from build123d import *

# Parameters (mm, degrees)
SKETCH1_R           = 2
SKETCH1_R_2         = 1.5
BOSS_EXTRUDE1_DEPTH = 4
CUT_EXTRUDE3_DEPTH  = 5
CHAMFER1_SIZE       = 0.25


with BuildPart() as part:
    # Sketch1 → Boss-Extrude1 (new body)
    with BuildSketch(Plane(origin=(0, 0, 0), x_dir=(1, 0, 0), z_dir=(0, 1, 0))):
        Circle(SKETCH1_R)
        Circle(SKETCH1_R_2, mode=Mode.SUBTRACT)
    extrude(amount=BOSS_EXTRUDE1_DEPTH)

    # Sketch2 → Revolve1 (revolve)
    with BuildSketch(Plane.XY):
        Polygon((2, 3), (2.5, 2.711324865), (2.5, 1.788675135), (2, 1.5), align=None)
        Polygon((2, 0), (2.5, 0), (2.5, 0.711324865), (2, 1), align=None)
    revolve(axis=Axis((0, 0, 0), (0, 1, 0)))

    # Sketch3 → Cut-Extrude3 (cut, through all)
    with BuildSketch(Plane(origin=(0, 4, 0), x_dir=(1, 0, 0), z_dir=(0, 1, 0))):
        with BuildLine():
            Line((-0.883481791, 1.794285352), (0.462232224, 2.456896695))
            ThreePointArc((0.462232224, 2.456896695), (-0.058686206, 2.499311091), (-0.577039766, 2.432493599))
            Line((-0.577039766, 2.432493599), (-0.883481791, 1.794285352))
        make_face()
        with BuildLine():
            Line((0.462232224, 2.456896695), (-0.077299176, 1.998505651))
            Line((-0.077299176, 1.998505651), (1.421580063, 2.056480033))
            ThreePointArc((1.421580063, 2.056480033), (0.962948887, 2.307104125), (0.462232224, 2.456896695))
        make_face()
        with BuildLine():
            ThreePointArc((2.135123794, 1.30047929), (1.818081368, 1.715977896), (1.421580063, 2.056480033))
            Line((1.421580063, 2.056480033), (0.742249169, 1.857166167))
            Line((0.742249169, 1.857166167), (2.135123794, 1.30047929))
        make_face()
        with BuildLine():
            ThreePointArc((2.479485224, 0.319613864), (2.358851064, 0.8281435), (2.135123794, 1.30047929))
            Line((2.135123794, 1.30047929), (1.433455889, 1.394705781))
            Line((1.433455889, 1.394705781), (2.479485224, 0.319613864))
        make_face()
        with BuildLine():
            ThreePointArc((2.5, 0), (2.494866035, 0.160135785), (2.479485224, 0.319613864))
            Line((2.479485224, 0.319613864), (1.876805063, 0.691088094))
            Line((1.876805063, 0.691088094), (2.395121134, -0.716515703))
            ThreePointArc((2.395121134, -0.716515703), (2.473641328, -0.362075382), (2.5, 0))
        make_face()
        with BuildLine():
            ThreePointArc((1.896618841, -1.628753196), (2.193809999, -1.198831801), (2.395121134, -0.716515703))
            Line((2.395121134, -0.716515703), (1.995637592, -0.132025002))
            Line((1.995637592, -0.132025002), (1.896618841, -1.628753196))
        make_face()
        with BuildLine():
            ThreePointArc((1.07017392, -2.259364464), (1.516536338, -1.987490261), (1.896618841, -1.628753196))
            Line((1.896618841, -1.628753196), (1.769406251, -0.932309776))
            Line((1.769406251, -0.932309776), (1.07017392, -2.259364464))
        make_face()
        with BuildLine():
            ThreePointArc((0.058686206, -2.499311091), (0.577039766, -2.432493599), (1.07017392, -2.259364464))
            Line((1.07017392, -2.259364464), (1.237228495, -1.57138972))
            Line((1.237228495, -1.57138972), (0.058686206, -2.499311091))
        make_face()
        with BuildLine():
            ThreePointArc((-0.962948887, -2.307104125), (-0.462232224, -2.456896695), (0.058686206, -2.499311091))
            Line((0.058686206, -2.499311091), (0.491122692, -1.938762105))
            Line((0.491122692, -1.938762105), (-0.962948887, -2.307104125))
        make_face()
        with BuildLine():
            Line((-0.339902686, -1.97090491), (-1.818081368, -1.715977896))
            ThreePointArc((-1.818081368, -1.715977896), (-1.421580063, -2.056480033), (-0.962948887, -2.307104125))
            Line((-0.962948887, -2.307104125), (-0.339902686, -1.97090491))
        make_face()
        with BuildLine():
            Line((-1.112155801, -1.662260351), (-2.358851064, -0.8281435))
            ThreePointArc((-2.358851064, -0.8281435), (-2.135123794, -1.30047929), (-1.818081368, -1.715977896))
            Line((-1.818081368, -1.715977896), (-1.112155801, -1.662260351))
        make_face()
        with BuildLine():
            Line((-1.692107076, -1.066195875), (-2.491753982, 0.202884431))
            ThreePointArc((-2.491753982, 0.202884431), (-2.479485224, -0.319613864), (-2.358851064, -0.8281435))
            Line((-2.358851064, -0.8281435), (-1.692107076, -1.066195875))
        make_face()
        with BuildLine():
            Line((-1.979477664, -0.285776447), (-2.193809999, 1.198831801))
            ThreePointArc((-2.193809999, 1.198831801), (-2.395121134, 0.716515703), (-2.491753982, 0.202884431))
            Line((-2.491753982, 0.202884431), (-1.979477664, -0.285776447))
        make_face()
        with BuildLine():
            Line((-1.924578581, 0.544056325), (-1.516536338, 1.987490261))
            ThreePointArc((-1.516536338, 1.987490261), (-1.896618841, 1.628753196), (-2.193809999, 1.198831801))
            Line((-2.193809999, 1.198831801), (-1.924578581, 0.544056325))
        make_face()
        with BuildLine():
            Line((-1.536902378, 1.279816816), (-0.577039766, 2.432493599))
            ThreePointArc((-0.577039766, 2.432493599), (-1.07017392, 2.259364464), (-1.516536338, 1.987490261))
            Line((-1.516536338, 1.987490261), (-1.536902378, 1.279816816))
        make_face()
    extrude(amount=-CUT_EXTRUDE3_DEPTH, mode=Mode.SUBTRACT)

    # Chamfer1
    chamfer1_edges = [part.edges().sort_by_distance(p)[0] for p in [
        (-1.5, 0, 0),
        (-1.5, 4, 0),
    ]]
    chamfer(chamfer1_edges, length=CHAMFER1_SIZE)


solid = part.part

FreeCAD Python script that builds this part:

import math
import FreeCAD as App
import Part
import Sketcher
from FreeCAD import Vector
Q = App.Units.Quantity


def edges_at(feature, points):
    """Names of the edges that pass closest to the given points."""
    edges = feature.Shape.Edges
    near = lambda p: min(range(len(edges)), key=lambda i: edges[i].distToShape(Part.Vertex(*p))[0])
    return sorted({f"Edge{near(p) + 1}" for p in points})

doc = App.newDocument("Part")
params = doc.addObject("Spreadsheet::Sheet", "Params")
for row, (alias, value) in enumerate([
    ("sketch1_diameter", "4 mm"),
    ("sketch1_diameter2", "3 mm"),
    ("pad1_length", "4 mm"),
    ("sketch2_height", "1 mm"),
    ("sketch2_width", "0.5 mm"),
    ("sketch2_height2", "1.5 mm"),
    ("revolution_angle", "360 deg"),
    ("sketch3_radius", "2.5 mm"),
    ("sketch3_length", "1.5 mm"),
    ("chamfer_size", "0.25 mm"),
], start=1):
    params.set(f"A{row}", alias)
    params.set(f"B{row}", "=" + value)
    params.setAlias(f"B{row}", alias)

body = doc.addObject("PartDesign::Body", "Body")

sketch1 = body.newObject("Sketcher::SketchObject", "Sketch")
sketch1.AttachmentSupport = (doc.getObject("XZ_Plane"), [""])
sketch1.MapMode = "FlatFace"
sketch1.addGeometry([
    Part.Circle(Vector(0, 0, 0), Vector(0, 0, 1), 2),
    Part.Circle(Vector(0, 0, 0), Vector(0, 0, 1), 1.5),
], False)
sketch1.addConstraint([
    Sketcher.Constraint("Coincident", 0, 3, -1, 1),
    Sketcher.Constraint("Coincident", 1, 3, -1, 1),
    Sketcher.Constraint("Diameter", 0, 4.0),
    Sketcher.Constraint("Diameter", 1, 3.0),
])
sketch1.setExpression("Constraints[2]", "Params.sketch1_diameter")
sketch1.setExpression("Constraints[3]", "Params.sketch1_diameter2")
pad1 = body.newObject("PartDesign::Pad", "Pad")
pad1.Profile = sketch1
pad1.setExpression("Length", "Params.pad1_length")
pad1.Reversed = True

sketch2 = body.newObject("Sketcher::SketchObject", "Sketch001")
sketch2.AttachmentSupport = (doc.getObject("XY_Plane"), [""])
sketch2.MapMode = "FlatFace"
sketch2.addGeometry([
    Part.LineSegment(Vector(2.5, 2.7, 0), Vector(2, 3, 0)),
    Part.LineSegment(Vector(2, 3, 0), Vector(2, 1.5, 0)),
    Part.LineSegment(Vector(2, 1.5, 0), Vector(2.5, 1.8, 0)),
    Part.LineSegment(Vector(2.5, 1.8, 0), Vector(2.5, 2.7, 0)),
    Part.LineSegment(Vector(2, 0, 0), Vector(2.5, 0, 0)),
    Part.LineSegment(Vector(2.5, 0, 0), Vector(2.5, 0.7, 0)),
    Part.LineSegment(Vector(2.5, 0.7, 0), Vector(2, 1, 0)),
    Part.LineSegment(Vector(2, 1, 0), Vector(2, 0, 0)),
], False)
sketch2.addConstraint([
    Sketcher.Constraint("Coincident", 0, 2, 1, 1),
    Sketcher.Constraint("Coincident", 1, 2, 2, 1),
    Sketcher.Constraint("Coincident", 2, 2, 3, 1),
    Sketcher.Constraint("Coincident", 3, 2, 0, 1),
    Sketcher.Constraint("Coincident", 4, 2, 5, 1),
    Sketcher.Constraint("Coincident", 5, 2, 6, 1),
    Sketcher.Constraint("Coincident", 6, 2, 7, 1),
    Sketcher.Constraint("Coincident", 7, 2, 4, 1),
    Sketcher.Constraint("Vertical", 1),
    Sketcher.Constraint("Vertical", 3),
    Sketcher.Constraint("Horizontal", 4),
    Sketcher.Constraint("Vertical", 5),
    Sketcher.Constraint("Vertical", 7),
    Sketcher.Constraint("PointOnObject", 4, 2, -1),
    Sketcher.Constraint("Parallel", 0, 6),
    Sketcher.Constraint("Vertical", 3, 2, 4, 2),
    Sketcher.Constraint("Vertical", 1, 2, 6, 2),
    Sketcher.Constraint("Equal", 0, 2),
    Sketcher.Constraint("DistanceY", 7, 2, 7, 1, 1.0),
    Sketcher.Constraint("Angle", 0, Q("150 deg")),
    Sketcher.Constraint("DistanceX", 4, 1, 4, 2, 0.5),
    Sketcher.Constraint("DistanceY", 1, 2, 1, 1, 1.5),
    Sketcher.Constraint("DistanceX", -1, 1, 0, 2, 2.0),
    Sketcher.Constraint("DistanceY", -1, 1, 0, 2, 3.0),
])
sketch2.setExpression("Constraints[18]", "Params.sketch2_height")
sketch2.setExpression("Constraints[20]", "Params.sketch2_width")
sketch2.setExpression("Constraints[21]", "Params.sketch2_height2")
revolution = body.newObject("PartDesign::Revolution", "Revolution")
revolution.Profile = sketch2
revolution.ReferenceAxis = (sketch2, ["V_Axis"])
revolution.setExpression("Angle", "Params.revolution_angle")

sketch3 = body.newObject("Sketcher::SketchObject", "Sketch002")
sketch3.AttachmentSupport = (doc.getObject("XZ_Plane"), [""])
sketch3.MapMode = "FlatFace"
sketch3.AttachmentOffset = App.Placement(Vector(0, 0, -4), App.Rotation())
sketch3.addGeometry([
    Part.LineSegment(Vector(-0.88, -1.79, 0), Vector(0.46, -2.46, 0)),
    Part.ArcOfCircle(Part.Circle(Vector(0, 0, 0), Vector(0, 0, 1), 2.5), math.radians(-103), math.radians(-79)),
    Part.LineSegment(Vector(-0.58, -2.43, 0), Vector(-0.88, -1.79, 0)),
    Part.LineSegment(Vector(0.46, -2.46, 0), Vector(-0.08, -2, 0)),
    Part.LineSegment(Vector(-0.08, -2, 0), Vector(1.42, -2.06, 0)),
    Part.ArcOfCircle(Part.Circle(Vector(0, 0, 0), Vector(0, 0, 1), 2.5), math.radians(-79), math.radians(-55)),
    Part.ArcOfCircle(Part.Circle(Vector(0, 0, 0), Vector(0, 0, 1), 2.5), math.radians(-55), math.radians(-31)),
    Part.LineSegment(Vector(1.42, -2.06, 0), Vector(0.74, -1.86, 0)),
    Part.LineSegment(Vector(0.74, -1.86, 0), Vector(2.14, -1.3, 0)),
    Part.ArcOfCircle(Part.Circle(Vector(0, 0, 0), Vector(0, 0, 1), 2.5), math.radians(-31), math.radians(-7)),
    Part.LineSegment(Vector(2.14, -1.3, 0), Vector(1.43, -1.39, 0)),
    Part.LineSegment(Vector(1.43, -1.39, 0), Vector(2.48, -0.32, 0)),
    Part.ArcOfCircle(Part.Circle(Vector(0, 0, 0), Vector(0, 0, 1), 2.5), math.radians(-7.35), math.radians(0)),
    Part.LineSegment(Vector(2.48, -0.32, 0), Vector(1.88, -0.69, 0)),
    Part.LineSegment(Vector(1.88, -0.69, 0), Vector(2.4, 0.72, 0)),
    Part.ArcOfCircle(Part.Circle(Vector(0, 0, 0), Vector(0, 0, 1), 2.5), math.radians(0), math.radians(16.65)),
    Part.ArcOfCircle(Part.Circle(Vector(0, 0, 0), Vector(0, 0, 1), 2.5), math.radians(17), math.radians(41)),
    Part.LineSegment(Vector(2.4, 0.72, 0), Vector(2, 0.13, 0)),
    Part.LineSegment(Vector(2, 0.13, 0), Vector(1.9, 1.63, 0)),
    Part.ArcOfCircle(Part.Circle(Vector(0, 0, 0), Vector(0, 0, 1), 2.5), math.radians(41), math.radians(65)),
    Part.LineSegment(Vector(1.9, 1.63, 0), Vector(1.77, 0.93, 0)),
    Part.LineSegment(Vector(1.77, 0.93, 0), Vector(1.07, 2.26, 0)),
    Part.ArcOfCircle(Part.Circle(Vector(0, 0, 0), Vector(0, 0, 1), 2.5), math.radians(65), math.radians(89)),
    Part.LineSegment(Vector(1.07, 2.26, 0), Vector(1.24, 1.57, 0)),
    Part.LineSegment(Vector(1.24, 1.57, 0), Vector(0.06, 2.5, 0)),
    Part.ArcOfCircle(Part.Circle(Vector(0, 0, 0), Vector(0, 0, 1), 2.5), math.radians(89), math.radians(113)),
    Part.LineSegment(Vector(0.06, 2.5, 0), Vector(0.49, 1.94, 0)),
    Part.LineSegment(Vector(0.49, 1.94, 0), Vector(-0.96, 2.31, 0)),
    Part.LineSegment(Vector(-0.34, 1.97, 0), Vector(-1.82, 1.72, 0)),
    Part.ArcOfCircle(Part.Circle(Vector(0, 0, 0), Vector(0, 0, 1), 2.5), math.radians(113), math.radians(137)),
    Part.LineSegment(Vector(-0.96, 2.31, 0), Vector(-0.34, 1.97, 0)),
    Part.LineSegment(Vector(-1.11, 1.66, 0), Vector(-2.36, 0.83, 0)),
    Part.ArcOfCircle(Part.Circle(Vector(0, 0, 0), Vector(0, 0, 1), 2.5), math.radians(137), math.radians(161)),
    Part.LineSegment(Vector(-1.82, 1.72, 0), Vector(-1.11, 1.66, 0)),
    Part.LineSegment(Vector(-1.69, 1.07, 0), Vector(-2.49, -0.2, 0)),
    Part.ArcOfCircle(Part.Circle(Vector(0, 0, 0), Vector(0, 0, 1), 2.5), math.radians(161), math.radians(185)),
    Part.LineSegment(Vector(-2.36, 0.83, 0), Vector(-1.69, 1.07, 0)),
    Part.LineSegment(Vector(-1.98, 0.29, 0), Vector(-2.19, -1.2, 0)),
    Part.ArcOfCircle(Part.Circle(Vector(0, 0, 0), Vector(0, 0, 1), 2.5), math.radians(-175), math.radians(-151)),
    Part.LineSegment(Vector(-2.49, -0.2, 0), Vector(-1.98, 0.29, 0)),
    Part.LineSegment(Vector(-1.92, -0.54, 0), Vector(-1.52, -1.99, 0)),
    Part.ArcOfCircle(Part.Circle(Vector(0, 0, 0), Vector(0, 0, 1), 2.5), math.radians(-151), math.radians(-127)),
    Part.LineSegment(Vector(-2.19, -1.2, 0), Vector(-1.92, -0.54, 0)),
    Part.LineSegment(Vector(-1.54, -1.28, 0), Vector(-0.58, -2.43, 0)),
    Part.ArcOfCircle(Part.Circle(Vector(0, 0, 0), Vector(0, 0, 1), 2.5), math.radians(-127), math.radians(-103)),
    Part.LineSegment(Vector(-1.52, -1.99, 0), Vector(-1.54, -1.28, 0)),
], False)
sketch3.addConstraint([
    Sketcher.Constraint("Coincident", 0, 2, 1, 2),
    Sketcher.Constraint("Coincident", 1, 1, 2, 1),
    Sketcher.Constraint("Coincident", 2, 2, 0, 1),
    Sketcher.Constraint("Coincident", 3, 2, 4, 1),
    Sketcher.Constraint("Coincident", 4, 2, 5, 2),
    Sketcher.Constraint("Coincident", 5, 1, 3, 1),
    Sketcher.Constraint("Coincident", 6, 1, 7, 1),
    Sketcher.Constraint("Coincident", 7, 2, 8, 1),
    Sketcher.Constraint("Coincident", 8, 2, 6, 2),
    Sketcher.Constraint("Coincident", 9, 1, 10, 1),
    Sketcher.Constraint("Coincident", 10, 2, 11, 1),
    Sketcher.Constraint("Coincident", 11, 2, 9, 2),
    Sketcher.Constraint("Coincident", 12, 1, 13, 1),
    Sketcher.Constraint("Coincident", 13, 2, 14, 1),
    Sketcher.Constraint("Coincident", 14, 2, 15, 2),
    Sketcher.Constraint("Tangent", 15, 1, 12, 2),
    Sketcher.Constraint("Coincident", 16, 1, 17, 1),
    Sketcher.Constraint("Coincident", 17, 2, 18, 1),
    Sketcher.Constraint("Coincident", 18, 2, 16, 2),
    Sketcher.Constraint("Coincident", 19, 1, 20, 1),
    Sketcher.Constraint("Coincident", 20, 2, 21, 1),
    Sketcher.Constraint("Coincident", 21, 2, 19, 2),
    Sketcher.Constraint("Coincident", 22, 1, 23, 1),
    Sketcher.Constraint("Coincident", 23, 2, 24, 1),
    Sketcher.Constraint("Coincident", 24, 2, 22, 2),
    Sketcher.Constraint("Coincident", 25, 1, 26, 1),
    Sketcher.Constraint("Coincident", 26, 2, 27, 1),
    Sketcher.Constraint("Coincident", 27, 2, 25, 2),
    Sketcher.Constraint("Coincident", 28, 2, 29, 2),
    Sketcher.Constraint("Coincident", 29, 1, 30, 1),
    Sketcher.Constraint("Coincident", 30, 2, 28, 1),
    Sketcher.Constraint("Coincident", 31, 2, 32, 2),
    Sketcher.Constraint("Coincident", 32, 1, 33, 1),
    Sketcher.Constraint("Coincident", 33, 2, 31, 1),
    Sketcher.Constraint("Coincident", 34, 2, 35, 2),
    Sketcher.Constraint("Coincident", 35, 1, 36, 1),
    Sketcher.Constraint("Coincident", 36, 2, 34, 1),
    Sketcher.Constraint("Coincident", 37, 2, 38, 2),
    Sketcher.Constraint("Coincident", 38, 1, 39, 1),
    Sketcher.Constraint("Coincident", 39, 2, 37, 1),
    Sketcher.Constraint("Coincident", 40, 2, 41, 2),
    Sketcher.Constraint("Coincident", 41, 1, 42, 1),
    Sketcher.Constraint("Coincident", 42, 2, 40, 1),
    Sketcher.Constraint("Coincident", 43, 2, 44, 2),
    Sketcher.Constraint("Coincident", 44, 1, 45, 1),
    Sketcher.Constraint("Coincident", 45, 2, 43, 1),
    Sketcher.Constraint("Coincident", 1, 3, -1, 1),
    Sketcher.Constraint("Coincident", 5, 3, -1, 1),
    Sketcher.Constraint("Coincident", 6, 3, -1, 1),
    Sketcher.Constraint("Coincident", 9, 3, -1, 1),
    Sketcher.Constraint("Coincident", 12, 3, -1, 1),
    Sketcher.Constraint("Coincident", 16, 3, -1, 1),
    Sketcher.Constraint("Coincident", 19, 3, -1, 1),
    Sketcher.Constraint("Coincident", 22, 3, -1, 1),
    Sketcher.Constraint("Coincident", 25, 3, -1, 1),
    Sketcher.Constraint("Coincident", 29, 3, -1, 1),
    Sketcher.Constraint("Coincident", 32, 3, -1, 1),
    Sketcher.Constraint("Coincident", 35, 3, -1, 1),
    Sketcher.Constraint("Coincident", 38, 3, -1, 1),
    Sketcher.Constraint("Coincident", 41, 3, -1, 1),
    Sketcher.Constraint("Coincident", 44, 3, -1, 1),
    Sketcher.Constraint("Coincident", 5, 1, 0, 2),
    Sketcher.Constraint("Coincident", 6, 1, 4, 2),
    Sketcher.Constraint("Coincident", 9, 1, 8, 2),
    Sketcher.Constraint("Coincident", 12, 1, 11, 2),
    Sketcher.Constraint("Coincident", 16, 1, 14, 2),
    Sketcher.Constraint("Coincident", 19, 1, 18, 2),
    Sketcher.Constraint("Coincident", 22, 1, 21, 2),
    Sketcher.Constraint("Coincident", 25, 1, 24, 2),
    Sketcher.Constraint("Coincident", 29, 1, 27, 2),
    Sketcher.Constraint("Coincident", 32, 1, 28, 2),
    Sketcher.Constraint("Coincident", 35, 1, 31, 2),
    Sketcher.Constraint("Coincident", 38, 1, 34, 2),
    Sketcher.Constraint("Coincident", 41, 1, 37, 2),
    Sketcher.Constraint("Coincident", 43, 2, 1, 1),
    Sketcher.Constraint("Coincident", 44, 1, 40, 2),
    Sketcher.Constraint("PointOnObject", 15, 1, -1),
    Sketcher.Constraint("Equal", 2, 3),
    Sketcher.Constraint("Equal", 0, 4),
    Sketcher.Constraint("Equal", 3, 7),
    Sketcher.Constraint("Equal", 4, 8),
    Sketcher.Constraint("Equal", 7, 10),
    Sketcher.Constraint("Equal", 8, 11),
    Sketcher.Constraint("Equal", 10, 13),
    Sketcher.Constraint("Equal", 11, 14),
    Sketcher.Constraint("Equal", 13, 17),
    Sketcher.Constraint("Equal", 14, 18),
    Sketcher.Constraint("Equal", 17, 20),
    Sketcher.Constraint("Equal", 18, 21),
    Sketcher.Constraint("Equal", 20, 23),
    Sketcher.Constraint("Equal", 21, 24),
    Sketcher.Constraint("Equal", 23, 26),
    Sketcher.Constraint("Equal", 24, 27),
    Sketcher.Constraint("Equal", 27, 28),
    Sketcher.Constraint("Equal", 26, 30),
    Sketcher.Constraint("Equal", 28, 31),
    Sketcher.Constraint("Equal", 30, 33),
    Sketcher.Constraint("Equal", 31, 34),
    Sketcher.Constraint("Equal", 33, 36),
    Sketcher.Constraint("Equal", 34, 37),
    Sketcher.Constraint("Equal", 36, 39),
    Sketcher.Constraint("Equal", 37, 40),
    Sketcher.Constraint("Equal", 39, 42),
    Sketcher.Constraint("Equal", 40, 43),
    Sketcher.Constraint("Equal", 42, 45),
    Sketcher.Constraint("Radius", 1, 2.5),
    Sketcher.Constraint("Distance", 0, 1.5),
    Sketcher.Constraint("DistanceX", 3, 2, -1, 1, 0.077299),
    Sketcher.Constraint("DistanceX", 1, 1, -1, 1, 0.57704),
    Sketcher.Constraint("DistanceX", 2, 2, -1, 1, 0.883482),
    Sketcher.Constraint("DistanceX", -1, 1, 4, 2, 1.42158),
    Sketcher.Constraint("DistanceX", -1, 1, 7, 2, 0.742249),
    Sketcher.Constraint("DistanceY", 13, 2, -1, 1, 0.691088),
    Sketcher.Constraint("DistanceX", -1, 1, 14, 2, 2.395121),
    Sketcher.Constraint("DistanceX", -1, 1, 18, 2, 1.896619),
    Sketcher.Constraint("DistanceY", -1, 1, 20, 2, 0.93231),
    Sketcher.Constraint("DistanceX", -1, 1, 23, 2, 1.237228),
    Sketcher.Constraint("DistanceX", 27, 2, -1, 1, 0.962949),
    Sketcher.Constraint("DistanceX", 28, 2, -1, 1, 1.818081),
    Sketcher.Constraint("DistanceX", 31, 2, -1, 1, 2.358851),
    Sketcher.Constraint("DistanceX", 37, 2, -1, 1, 2.19381),
    Sketcher.Constraint("DistanceY", 40, 2, -1, 1, 1.98749),
    Sketcher.Constraint("DistanceX", 34, 2, -1, 1, 2.491754),
])
sketch3.setExpression("Constraints[105]", "Params.sketch3_radius")
sketch3.setExpression("Constraints[106]", "Params.sketch3_length")
pocket1 = body.newObject("PartDesign::Pocket", "Pocket")
pocket1.Profile = sketch3
pocket1.Type = "ThroughAll"
pocket1.Reversed = True
doc.recompute()

chamfer = body.newObject("PartDesign::Chamfer", "Chamfer")
chamfer.Base = (pocket1, edges_at(pocket1, [(-1.5, 0, 0), (-1.5, 4, 0)]))
chamfer.setExpression("Size", "Params.chamfer_size")

doc.recompute()
